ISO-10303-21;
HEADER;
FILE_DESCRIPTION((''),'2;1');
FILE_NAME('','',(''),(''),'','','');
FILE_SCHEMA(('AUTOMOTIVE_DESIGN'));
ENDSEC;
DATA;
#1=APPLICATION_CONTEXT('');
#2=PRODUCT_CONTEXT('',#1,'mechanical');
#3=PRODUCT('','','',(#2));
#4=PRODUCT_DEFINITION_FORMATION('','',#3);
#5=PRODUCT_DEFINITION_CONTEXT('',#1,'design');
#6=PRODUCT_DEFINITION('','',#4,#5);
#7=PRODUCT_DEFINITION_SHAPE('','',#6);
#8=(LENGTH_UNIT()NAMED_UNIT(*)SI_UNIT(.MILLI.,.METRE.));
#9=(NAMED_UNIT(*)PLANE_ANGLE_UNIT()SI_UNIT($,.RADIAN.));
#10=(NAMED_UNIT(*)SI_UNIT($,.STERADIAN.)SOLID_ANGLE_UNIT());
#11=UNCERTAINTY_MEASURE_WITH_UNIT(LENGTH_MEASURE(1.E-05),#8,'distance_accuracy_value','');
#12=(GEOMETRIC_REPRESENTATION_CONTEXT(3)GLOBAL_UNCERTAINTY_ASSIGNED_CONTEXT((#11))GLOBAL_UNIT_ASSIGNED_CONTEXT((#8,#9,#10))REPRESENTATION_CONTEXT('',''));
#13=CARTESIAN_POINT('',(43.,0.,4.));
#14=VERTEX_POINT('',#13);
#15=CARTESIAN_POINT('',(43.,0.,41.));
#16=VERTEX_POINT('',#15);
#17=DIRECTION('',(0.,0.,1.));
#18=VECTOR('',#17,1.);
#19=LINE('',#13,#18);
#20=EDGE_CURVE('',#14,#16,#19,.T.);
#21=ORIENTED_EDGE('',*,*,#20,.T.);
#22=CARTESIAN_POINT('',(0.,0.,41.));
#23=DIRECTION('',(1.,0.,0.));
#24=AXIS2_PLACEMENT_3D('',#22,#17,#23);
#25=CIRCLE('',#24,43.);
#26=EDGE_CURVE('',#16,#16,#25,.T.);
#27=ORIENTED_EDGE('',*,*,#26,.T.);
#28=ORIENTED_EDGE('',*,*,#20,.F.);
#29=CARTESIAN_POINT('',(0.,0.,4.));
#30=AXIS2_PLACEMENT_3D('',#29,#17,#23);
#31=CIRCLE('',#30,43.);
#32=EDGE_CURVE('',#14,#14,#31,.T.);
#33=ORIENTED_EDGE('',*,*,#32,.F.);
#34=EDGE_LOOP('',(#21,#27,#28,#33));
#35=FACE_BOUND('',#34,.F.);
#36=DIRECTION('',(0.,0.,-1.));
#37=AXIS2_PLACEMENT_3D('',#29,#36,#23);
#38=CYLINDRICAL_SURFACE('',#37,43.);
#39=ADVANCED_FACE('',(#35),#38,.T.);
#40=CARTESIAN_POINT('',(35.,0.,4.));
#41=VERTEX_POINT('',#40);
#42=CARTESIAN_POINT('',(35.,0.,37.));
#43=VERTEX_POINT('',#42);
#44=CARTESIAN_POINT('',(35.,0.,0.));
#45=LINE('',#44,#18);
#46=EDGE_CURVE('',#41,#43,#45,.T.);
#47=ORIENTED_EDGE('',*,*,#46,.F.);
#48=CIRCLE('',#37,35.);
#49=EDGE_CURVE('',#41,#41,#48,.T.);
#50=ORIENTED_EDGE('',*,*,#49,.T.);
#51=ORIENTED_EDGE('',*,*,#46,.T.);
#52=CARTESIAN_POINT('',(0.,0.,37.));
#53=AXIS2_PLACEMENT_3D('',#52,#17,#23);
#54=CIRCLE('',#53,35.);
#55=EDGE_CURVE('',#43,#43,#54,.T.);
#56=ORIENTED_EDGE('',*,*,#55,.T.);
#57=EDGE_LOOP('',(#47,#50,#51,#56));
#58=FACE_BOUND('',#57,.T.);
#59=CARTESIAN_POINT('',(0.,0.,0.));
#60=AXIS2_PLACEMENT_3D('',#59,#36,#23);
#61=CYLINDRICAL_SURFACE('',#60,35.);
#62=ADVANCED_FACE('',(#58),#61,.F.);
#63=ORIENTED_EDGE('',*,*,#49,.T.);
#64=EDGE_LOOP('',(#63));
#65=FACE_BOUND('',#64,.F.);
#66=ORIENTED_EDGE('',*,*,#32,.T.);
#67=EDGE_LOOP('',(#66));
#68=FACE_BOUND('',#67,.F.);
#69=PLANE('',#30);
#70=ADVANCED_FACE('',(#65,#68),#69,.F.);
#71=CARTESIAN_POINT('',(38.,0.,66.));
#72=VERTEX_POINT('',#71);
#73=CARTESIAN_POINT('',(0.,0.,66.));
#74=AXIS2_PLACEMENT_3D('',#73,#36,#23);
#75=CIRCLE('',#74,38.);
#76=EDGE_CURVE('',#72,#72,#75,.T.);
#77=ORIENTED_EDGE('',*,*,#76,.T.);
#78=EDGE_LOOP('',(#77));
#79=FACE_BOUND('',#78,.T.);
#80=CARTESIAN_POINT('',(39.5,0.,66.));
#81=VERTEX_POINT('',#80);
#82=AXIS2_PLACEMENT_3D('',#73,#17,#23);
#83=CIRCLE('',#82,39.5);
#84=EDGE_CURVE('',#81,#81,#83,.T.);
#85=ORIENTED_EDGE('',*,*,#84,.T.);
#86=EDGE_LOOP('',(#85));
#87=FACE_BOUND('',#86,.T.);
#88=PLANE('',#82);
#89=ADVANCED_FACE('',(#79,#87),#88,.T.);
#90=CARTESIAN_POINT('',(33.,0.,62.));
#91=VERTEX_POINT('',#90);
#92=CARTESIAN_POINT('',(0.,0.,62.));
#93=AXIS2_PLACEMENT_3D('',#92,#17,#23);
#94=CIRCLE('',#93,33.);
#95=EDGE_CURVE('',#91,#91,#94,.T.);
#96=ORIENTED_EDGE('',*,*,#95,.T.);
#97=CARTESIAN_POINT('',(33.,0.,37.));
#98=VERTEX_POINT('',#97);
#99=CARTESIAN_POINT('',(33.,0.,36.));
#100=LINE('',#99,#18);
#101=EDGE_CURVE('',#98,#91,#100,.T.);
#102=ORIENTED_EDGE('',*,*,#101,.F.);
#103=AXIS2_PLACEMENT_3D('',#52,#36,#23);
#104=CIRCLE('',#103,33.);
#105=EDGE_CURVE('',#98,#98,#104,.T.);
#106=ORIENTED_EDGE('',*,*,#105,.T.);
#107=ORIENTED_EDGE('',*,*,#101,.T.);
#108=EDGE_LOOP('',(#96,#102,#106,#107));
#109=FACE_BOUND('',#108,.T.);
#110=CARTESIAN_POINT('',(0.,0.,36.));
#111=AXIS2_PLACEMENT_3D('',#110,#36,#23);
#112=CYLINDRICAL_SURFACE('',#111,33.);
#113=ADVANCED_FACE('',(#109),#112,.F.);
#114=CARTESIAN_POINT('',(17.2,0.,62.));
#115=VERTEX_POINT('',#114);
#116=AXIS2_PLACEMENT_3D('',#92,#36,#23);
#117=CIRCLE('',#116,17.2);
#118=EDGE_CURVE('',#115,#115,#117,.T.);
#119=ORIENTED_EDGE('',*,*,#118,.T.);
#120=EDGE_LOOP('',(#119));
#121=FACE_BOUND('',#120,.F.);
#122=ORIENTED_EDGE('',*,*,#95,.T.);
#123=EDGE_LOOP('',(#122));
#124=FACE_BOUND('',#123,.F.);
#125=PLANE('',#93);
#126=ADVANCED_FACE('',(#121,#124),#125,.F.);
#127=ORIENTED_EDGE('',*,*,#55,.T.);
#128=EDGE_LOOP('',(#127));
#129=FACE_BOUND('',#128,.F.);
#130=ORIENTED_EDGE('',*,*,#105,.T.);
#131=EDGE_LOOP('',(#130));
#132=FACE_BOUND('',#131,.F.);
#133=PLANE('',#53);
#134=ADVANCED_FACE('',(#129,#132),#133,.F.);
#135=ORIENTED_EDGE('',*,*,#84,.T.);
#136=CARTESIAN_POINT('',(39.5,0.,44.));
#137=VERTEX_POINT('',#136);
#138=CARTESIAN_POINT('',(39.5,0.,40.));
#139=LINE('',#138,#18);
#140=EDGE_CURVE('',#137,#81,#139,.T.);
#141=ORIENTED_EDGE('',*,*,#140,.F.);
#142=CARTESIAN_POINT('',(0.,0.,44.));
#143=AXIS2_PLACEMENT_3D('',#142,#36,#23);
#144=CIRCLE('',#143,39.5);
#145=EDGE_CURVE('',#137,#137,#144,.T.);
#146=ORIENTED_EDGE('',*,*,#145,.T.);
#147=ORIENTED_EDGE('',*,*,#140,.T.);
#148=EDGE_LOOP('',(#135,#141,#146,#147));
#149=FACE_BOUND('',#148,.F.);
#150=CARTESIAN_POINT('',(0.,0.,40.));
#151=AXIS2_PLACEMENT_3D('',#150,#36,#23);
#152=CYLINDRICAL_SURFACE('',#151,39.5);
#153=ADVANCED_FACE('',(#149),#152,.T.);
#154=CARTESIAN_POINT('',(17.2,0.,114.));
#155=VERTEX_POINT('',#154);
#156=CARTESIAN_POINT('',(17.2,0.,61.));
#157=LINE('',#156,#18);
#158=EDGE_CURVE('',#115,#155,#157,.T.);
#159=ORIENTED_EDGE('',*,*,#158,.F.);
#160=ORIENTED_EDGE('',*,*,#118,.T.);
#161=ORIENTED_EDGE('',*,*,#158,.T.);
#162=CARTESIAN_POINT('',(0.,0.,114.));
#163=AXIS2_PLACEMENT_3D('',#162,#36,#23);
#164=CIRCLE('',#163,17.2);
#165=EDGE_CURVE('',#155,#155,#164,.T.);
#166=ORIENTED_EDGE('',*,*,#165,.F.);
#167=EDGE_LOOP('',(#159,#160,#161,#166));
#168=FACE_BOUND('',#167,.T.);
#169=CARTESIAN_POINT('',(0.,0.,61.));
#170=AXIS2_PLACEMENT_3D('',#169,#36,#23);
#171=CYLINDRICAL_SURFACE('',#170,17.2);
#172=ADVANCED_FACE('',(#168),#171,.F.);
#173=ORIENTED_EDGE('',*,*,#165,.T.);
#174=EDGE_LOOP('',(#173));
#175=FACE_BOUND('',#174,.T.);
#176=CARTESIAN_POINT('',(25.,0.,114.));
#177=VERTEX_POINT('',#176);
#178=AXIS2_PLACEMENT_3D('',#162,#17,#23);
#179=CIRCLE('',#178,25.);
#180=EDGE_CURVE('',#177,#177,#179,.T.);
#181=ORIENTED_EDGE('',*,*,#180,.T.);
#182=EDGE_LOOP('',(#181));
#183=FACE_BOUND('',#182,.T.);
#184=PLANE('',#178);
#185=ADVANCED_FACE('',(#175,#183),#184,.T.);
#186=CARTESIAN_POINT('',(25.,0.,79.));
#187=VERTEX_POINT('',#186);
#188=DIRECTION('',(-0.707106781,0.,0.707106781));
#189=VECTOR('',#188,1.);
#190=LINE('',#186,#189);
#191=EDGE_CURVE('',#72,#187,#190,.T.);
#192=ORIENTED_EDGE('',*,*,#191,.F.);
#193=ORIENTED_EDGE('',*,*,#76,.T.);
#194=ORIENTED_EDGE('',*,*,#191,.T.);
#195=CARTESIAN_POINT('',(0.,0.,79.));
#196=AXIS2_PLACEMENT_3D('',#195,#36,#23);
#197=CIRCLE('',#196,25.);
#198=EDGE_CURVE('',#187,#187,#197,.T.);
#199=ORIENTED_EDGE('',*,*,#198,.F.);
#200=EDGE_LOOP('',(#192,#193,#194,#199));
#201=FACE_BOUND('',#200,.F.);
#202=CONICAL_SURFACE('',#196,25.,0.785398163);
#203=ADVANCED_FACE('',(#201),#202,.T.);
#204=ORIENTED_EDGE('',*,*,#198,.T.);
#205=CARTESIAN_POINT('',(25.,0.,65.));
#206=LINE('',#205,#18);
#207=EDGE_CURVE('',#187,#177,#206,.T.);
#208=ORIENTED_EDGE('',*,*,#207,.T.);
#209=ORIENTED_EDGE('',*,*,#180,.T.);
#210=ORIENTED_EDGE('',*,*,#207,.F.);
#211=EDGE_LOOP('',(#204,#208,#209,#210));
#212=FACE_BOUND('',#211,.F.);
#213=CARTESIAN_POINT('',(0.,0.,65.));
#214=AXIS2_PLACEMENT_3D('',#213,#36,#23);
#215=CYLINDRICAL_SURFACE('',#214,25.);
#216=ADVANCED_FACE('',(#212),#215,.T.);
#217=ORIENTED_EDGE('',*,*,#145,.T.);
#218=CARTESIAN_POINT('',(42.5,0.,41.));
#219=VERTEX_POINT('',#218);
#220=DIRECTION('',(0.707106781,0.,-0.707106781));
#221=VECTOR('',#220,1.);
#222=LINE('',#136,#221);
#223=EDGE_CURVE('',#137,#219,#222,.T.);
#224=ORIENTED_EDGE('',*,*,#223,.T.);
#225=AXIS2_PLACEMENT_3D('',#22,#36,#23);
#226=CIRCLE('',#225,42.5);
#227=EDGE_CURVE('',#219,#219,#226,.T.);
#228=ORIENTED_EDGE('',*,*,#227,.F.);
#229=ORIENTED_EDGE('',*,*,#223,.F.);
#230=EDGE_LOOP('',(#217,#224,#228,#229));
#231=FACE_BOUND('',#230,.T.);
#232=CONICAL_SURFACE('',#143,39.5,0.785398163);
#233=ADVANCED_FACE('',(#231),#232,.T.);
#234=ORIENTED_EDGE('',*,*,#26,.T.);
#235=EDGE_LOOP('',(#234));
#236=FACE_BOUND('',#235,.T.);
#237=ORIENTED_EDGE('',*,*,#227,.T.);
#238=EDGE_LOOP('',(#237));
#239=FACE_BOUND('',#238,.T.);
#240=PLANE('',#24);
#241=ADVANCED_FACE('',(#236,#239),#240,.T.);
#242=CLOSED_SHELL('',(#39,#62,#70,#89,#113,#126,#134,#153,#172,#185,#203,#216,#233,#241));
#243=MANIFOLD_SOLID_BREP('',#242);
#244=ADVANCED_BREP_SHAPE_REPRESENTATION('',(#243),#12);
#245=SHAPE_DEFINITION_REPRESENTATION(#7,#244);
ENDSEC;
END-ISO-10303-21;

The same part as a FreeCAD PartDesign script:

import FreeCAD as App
import Part
import Sketcher

V = App.Vector
Q = App.Units.Quantity


def edges_at(feature, points):
    """Names of the edges that pass closest to the given points."""
    edges = feature.Shape.Edges
    near = lambda p: min(range(len(edges)), key=lambda i: edges[i].distToShape(Part.Vertex(*p))[0])
    return sorted({f"Edge{near(p) + 1}" for p in points})

doc = App.newDocument("Part")
body = doc.addObject("PartDesign::Body", "Body")

# Sketch on XY plane
sketch1 = body.newObject("Sketcher::SketchObject", "Sketch")
sketch1.AttachmentSupport = (doc.getObject("XY_Plane"), [""])
sketch1.MapMode = "FlatFace"
sketch1.AttachmentOffset = App.Placement(V(0, 0, 36), App.Rotation())
sketch1.addGeometry(Part.Circle(V(0, 0, 0), V(0, 0, 1), 33), False)
sketch1.addConstraint([
    Sketcher.Constraint("Coincident", 0, 3, -1, 1),
    Sketcher.Constraint("Diameter", 0, Q("66 mm")),
])
pad1 = body.newObject("PartDesign::Pad", "Pad")
pad1.Profile = sketch1
pad1.Length = 26
body2 = doc.addObject("PartDesign::Body", "Body001")

# Sketch on XY plane
sketch2 = body2.newObject("Sketcher::SketchObject", "Sketch001")
sketch2.AttachmentSupport = (doc.getObject("XY_Plane001"), [""])
sketch2.MapMode = "FlatFace"
sketch2.addGeometry(Part.Circle(V(0, 0, 0), V(0, 0, 1), 35), False)
sketch2.addConstraint([
    Sketcher.Constraint("Coincident", 0, 3, -1, 1),
    Sketcher.Constraint("Diameter", 0, Q("70 mm")),
])
pad2 = body2.newObject("PartDesign::Pad", "Pad001")
pad2.Profile = sketch2
pad2.Length = 37
body3 = doc.addObject("PartDesign::Body", "Body002")

# Sketch on XY plane
sketch3 = body3.newObject("Sketcher::SketchObject", "Sketch002")
sketch3.AttachmentSupport = (doc.getObject("XY_Plane002"), [""])
sketch3.MapMode = "FlatFace"
sketch3.AttachmentOffset = App.Placement(V(0, 0, 61), App.Rotation())
sketch3.addGeometry(Part.Circle(V(0, 0, 0), V(0, 0, 1), 17.2), False)
sketch3.addConstraint([
    Sketcher.Constraint("Coincident", 0, 3, -1, 1),
    Sketcher.Constraint("Diameter", 0, Q("34.4 mm")),
])
pad3 = body3.newObject("PartDesign::Pad", "Pad002")
pad3.Profile = sketch3
pad3.Length = 63
body4 = doc.addObject("PartDesign::Body", "Body003")

# Sketch on XY plane
sketch4 = body4.newObject("Sketcher::SketchObject", "Sketch003")
sketch4.AttachmentSupport = (doc.getObject("XY_Plane003"), [""])
sketch4.MapMode = "FlatFace"
sketch4.AttachmentOffset = App.Placement(V(0, 0, 36), App.Rotation())
sketch4.addGeometry(Part.Circle(V(0, 0, 0), V(0, 0, 1), 39.5), False)
sketch4.addConstraint([
    Sketcher.Constraint("Coincident", 0, 3, -1, 1),
    Sketcher.Constraint("Diameter", 0, Q("79 mm")),
])
pad4 = body4.newObject("PartDesign::Pad", "Pad003")
pad4.Profile = sketch4
pad4.Length = 26
body5 = doc.addObject("PartDesign::Body", "Body004")

# Sketch on XY plane
sketch5 = body5.newObject("Sketcher::SketchObject", "Sketch004")
sketch5.AttachmentSupport = (doc.getObject("XY_Plane004"), [""])
sketch5.MapMode = "FlatFace"
sketch5.addGeometry(Part.Circle(V(0, 0, 0), V(0, 0, 1), 43), False)
sketch5.addConstraint([
    Sketcher.Constraint("Coincident", 0, 3, -1, 1),
    Sketcher.Constraint("Diameter", 0, Q("86 mm")),
])
pad5 = body5.newObject("PartDesign::Pad", "Pad004")
pad5.Profile = sketch5
pad5.Length = 37
doc.recompute()

boolean = body5.newObject("PartDesign::Boolean", "Boolean")
boolean.Type = "Fuse"
boolean.addObjects([body4])
body6 = doc.addObject("PartDesign::Body", "Body005")

# Sketch on XY plane
sketch6 = body6.newObject("Sketcher::SketchObject", "Sketch005")
sketch6.AttachmentSupport = (doc.getObject("XY_Plane005"), [""])
sketch6.MapMode = "FlatFace"
sketch6.AttachmentOffset = App.Placement(V(0, 0, 61), App.Rotation())
sketch6.addGeometry(Part.Circle(V(0, 0, 0), V(0, 0, 1), 25), False)
sketch6.addConstraint([
    Sketcher.Constraint("Coincident", 0, 3, -1, 1),
    Sketcher.Constraint("Diameter", 0, Q("50 mm")),
])
pad6 = body6.newObject("PartDesign::Pad", "Pad005")
pad6.Profile = sketch6
pad6.Length = 49
doc.recompute()

boolean2 = body6.newObject("PartDesign::Boolean", "Boolean001")
boolean2.Type = "Fuse"
boolean2.addObjects([body5])
body7 = doc.addObject("PartDesign::Body", "Body006")
doc.recompute()

body6.Placement = App.Placement(V(0, 0, 4), App.Rotation(V(0, 0, 1), 0))
boolean3 = body7.newObject("PartDesign::Boolean", "Boolean002")
boolean3.Type = "Fuse"
boolean3.addObjects([body6])
doc.recompute()

boolean4 = body7.newObject("PartDesign::Boolean", "Boolean003")
boolean4.Type = "Cut"
boolean4.addObjects([body3])
doc.recompute()

boolean5 = body7.newObject("PartDesign::Boolean", "Boolean004")
boolean5.Type = "Cut"
boolean5.addObjects([body2])
doc.recompute()

boolean6 = body7.newObject("PartDesign::Boolean", "Boolean005")
boolean6.Type = "Cut"
boolean6.addObjects([body])
doc.recompute()

chamfer = body7.newObject("PartDesign::Chamfer", "Chamfer")
chamfer.Base = (boolean6, edges_at(boolean6, [(-25, 0, 66)]))
chamfer.Size = 13
doc.recompute()

chamfer2 = body7.newObject("PartDesign::Chamfer", "Chamfer001")
chamfer2.Base = (chamfer, edges_at(chamfer, [(-39.5, 0, 41)]))
chamfer2.Size = 3

doc.recompute()
